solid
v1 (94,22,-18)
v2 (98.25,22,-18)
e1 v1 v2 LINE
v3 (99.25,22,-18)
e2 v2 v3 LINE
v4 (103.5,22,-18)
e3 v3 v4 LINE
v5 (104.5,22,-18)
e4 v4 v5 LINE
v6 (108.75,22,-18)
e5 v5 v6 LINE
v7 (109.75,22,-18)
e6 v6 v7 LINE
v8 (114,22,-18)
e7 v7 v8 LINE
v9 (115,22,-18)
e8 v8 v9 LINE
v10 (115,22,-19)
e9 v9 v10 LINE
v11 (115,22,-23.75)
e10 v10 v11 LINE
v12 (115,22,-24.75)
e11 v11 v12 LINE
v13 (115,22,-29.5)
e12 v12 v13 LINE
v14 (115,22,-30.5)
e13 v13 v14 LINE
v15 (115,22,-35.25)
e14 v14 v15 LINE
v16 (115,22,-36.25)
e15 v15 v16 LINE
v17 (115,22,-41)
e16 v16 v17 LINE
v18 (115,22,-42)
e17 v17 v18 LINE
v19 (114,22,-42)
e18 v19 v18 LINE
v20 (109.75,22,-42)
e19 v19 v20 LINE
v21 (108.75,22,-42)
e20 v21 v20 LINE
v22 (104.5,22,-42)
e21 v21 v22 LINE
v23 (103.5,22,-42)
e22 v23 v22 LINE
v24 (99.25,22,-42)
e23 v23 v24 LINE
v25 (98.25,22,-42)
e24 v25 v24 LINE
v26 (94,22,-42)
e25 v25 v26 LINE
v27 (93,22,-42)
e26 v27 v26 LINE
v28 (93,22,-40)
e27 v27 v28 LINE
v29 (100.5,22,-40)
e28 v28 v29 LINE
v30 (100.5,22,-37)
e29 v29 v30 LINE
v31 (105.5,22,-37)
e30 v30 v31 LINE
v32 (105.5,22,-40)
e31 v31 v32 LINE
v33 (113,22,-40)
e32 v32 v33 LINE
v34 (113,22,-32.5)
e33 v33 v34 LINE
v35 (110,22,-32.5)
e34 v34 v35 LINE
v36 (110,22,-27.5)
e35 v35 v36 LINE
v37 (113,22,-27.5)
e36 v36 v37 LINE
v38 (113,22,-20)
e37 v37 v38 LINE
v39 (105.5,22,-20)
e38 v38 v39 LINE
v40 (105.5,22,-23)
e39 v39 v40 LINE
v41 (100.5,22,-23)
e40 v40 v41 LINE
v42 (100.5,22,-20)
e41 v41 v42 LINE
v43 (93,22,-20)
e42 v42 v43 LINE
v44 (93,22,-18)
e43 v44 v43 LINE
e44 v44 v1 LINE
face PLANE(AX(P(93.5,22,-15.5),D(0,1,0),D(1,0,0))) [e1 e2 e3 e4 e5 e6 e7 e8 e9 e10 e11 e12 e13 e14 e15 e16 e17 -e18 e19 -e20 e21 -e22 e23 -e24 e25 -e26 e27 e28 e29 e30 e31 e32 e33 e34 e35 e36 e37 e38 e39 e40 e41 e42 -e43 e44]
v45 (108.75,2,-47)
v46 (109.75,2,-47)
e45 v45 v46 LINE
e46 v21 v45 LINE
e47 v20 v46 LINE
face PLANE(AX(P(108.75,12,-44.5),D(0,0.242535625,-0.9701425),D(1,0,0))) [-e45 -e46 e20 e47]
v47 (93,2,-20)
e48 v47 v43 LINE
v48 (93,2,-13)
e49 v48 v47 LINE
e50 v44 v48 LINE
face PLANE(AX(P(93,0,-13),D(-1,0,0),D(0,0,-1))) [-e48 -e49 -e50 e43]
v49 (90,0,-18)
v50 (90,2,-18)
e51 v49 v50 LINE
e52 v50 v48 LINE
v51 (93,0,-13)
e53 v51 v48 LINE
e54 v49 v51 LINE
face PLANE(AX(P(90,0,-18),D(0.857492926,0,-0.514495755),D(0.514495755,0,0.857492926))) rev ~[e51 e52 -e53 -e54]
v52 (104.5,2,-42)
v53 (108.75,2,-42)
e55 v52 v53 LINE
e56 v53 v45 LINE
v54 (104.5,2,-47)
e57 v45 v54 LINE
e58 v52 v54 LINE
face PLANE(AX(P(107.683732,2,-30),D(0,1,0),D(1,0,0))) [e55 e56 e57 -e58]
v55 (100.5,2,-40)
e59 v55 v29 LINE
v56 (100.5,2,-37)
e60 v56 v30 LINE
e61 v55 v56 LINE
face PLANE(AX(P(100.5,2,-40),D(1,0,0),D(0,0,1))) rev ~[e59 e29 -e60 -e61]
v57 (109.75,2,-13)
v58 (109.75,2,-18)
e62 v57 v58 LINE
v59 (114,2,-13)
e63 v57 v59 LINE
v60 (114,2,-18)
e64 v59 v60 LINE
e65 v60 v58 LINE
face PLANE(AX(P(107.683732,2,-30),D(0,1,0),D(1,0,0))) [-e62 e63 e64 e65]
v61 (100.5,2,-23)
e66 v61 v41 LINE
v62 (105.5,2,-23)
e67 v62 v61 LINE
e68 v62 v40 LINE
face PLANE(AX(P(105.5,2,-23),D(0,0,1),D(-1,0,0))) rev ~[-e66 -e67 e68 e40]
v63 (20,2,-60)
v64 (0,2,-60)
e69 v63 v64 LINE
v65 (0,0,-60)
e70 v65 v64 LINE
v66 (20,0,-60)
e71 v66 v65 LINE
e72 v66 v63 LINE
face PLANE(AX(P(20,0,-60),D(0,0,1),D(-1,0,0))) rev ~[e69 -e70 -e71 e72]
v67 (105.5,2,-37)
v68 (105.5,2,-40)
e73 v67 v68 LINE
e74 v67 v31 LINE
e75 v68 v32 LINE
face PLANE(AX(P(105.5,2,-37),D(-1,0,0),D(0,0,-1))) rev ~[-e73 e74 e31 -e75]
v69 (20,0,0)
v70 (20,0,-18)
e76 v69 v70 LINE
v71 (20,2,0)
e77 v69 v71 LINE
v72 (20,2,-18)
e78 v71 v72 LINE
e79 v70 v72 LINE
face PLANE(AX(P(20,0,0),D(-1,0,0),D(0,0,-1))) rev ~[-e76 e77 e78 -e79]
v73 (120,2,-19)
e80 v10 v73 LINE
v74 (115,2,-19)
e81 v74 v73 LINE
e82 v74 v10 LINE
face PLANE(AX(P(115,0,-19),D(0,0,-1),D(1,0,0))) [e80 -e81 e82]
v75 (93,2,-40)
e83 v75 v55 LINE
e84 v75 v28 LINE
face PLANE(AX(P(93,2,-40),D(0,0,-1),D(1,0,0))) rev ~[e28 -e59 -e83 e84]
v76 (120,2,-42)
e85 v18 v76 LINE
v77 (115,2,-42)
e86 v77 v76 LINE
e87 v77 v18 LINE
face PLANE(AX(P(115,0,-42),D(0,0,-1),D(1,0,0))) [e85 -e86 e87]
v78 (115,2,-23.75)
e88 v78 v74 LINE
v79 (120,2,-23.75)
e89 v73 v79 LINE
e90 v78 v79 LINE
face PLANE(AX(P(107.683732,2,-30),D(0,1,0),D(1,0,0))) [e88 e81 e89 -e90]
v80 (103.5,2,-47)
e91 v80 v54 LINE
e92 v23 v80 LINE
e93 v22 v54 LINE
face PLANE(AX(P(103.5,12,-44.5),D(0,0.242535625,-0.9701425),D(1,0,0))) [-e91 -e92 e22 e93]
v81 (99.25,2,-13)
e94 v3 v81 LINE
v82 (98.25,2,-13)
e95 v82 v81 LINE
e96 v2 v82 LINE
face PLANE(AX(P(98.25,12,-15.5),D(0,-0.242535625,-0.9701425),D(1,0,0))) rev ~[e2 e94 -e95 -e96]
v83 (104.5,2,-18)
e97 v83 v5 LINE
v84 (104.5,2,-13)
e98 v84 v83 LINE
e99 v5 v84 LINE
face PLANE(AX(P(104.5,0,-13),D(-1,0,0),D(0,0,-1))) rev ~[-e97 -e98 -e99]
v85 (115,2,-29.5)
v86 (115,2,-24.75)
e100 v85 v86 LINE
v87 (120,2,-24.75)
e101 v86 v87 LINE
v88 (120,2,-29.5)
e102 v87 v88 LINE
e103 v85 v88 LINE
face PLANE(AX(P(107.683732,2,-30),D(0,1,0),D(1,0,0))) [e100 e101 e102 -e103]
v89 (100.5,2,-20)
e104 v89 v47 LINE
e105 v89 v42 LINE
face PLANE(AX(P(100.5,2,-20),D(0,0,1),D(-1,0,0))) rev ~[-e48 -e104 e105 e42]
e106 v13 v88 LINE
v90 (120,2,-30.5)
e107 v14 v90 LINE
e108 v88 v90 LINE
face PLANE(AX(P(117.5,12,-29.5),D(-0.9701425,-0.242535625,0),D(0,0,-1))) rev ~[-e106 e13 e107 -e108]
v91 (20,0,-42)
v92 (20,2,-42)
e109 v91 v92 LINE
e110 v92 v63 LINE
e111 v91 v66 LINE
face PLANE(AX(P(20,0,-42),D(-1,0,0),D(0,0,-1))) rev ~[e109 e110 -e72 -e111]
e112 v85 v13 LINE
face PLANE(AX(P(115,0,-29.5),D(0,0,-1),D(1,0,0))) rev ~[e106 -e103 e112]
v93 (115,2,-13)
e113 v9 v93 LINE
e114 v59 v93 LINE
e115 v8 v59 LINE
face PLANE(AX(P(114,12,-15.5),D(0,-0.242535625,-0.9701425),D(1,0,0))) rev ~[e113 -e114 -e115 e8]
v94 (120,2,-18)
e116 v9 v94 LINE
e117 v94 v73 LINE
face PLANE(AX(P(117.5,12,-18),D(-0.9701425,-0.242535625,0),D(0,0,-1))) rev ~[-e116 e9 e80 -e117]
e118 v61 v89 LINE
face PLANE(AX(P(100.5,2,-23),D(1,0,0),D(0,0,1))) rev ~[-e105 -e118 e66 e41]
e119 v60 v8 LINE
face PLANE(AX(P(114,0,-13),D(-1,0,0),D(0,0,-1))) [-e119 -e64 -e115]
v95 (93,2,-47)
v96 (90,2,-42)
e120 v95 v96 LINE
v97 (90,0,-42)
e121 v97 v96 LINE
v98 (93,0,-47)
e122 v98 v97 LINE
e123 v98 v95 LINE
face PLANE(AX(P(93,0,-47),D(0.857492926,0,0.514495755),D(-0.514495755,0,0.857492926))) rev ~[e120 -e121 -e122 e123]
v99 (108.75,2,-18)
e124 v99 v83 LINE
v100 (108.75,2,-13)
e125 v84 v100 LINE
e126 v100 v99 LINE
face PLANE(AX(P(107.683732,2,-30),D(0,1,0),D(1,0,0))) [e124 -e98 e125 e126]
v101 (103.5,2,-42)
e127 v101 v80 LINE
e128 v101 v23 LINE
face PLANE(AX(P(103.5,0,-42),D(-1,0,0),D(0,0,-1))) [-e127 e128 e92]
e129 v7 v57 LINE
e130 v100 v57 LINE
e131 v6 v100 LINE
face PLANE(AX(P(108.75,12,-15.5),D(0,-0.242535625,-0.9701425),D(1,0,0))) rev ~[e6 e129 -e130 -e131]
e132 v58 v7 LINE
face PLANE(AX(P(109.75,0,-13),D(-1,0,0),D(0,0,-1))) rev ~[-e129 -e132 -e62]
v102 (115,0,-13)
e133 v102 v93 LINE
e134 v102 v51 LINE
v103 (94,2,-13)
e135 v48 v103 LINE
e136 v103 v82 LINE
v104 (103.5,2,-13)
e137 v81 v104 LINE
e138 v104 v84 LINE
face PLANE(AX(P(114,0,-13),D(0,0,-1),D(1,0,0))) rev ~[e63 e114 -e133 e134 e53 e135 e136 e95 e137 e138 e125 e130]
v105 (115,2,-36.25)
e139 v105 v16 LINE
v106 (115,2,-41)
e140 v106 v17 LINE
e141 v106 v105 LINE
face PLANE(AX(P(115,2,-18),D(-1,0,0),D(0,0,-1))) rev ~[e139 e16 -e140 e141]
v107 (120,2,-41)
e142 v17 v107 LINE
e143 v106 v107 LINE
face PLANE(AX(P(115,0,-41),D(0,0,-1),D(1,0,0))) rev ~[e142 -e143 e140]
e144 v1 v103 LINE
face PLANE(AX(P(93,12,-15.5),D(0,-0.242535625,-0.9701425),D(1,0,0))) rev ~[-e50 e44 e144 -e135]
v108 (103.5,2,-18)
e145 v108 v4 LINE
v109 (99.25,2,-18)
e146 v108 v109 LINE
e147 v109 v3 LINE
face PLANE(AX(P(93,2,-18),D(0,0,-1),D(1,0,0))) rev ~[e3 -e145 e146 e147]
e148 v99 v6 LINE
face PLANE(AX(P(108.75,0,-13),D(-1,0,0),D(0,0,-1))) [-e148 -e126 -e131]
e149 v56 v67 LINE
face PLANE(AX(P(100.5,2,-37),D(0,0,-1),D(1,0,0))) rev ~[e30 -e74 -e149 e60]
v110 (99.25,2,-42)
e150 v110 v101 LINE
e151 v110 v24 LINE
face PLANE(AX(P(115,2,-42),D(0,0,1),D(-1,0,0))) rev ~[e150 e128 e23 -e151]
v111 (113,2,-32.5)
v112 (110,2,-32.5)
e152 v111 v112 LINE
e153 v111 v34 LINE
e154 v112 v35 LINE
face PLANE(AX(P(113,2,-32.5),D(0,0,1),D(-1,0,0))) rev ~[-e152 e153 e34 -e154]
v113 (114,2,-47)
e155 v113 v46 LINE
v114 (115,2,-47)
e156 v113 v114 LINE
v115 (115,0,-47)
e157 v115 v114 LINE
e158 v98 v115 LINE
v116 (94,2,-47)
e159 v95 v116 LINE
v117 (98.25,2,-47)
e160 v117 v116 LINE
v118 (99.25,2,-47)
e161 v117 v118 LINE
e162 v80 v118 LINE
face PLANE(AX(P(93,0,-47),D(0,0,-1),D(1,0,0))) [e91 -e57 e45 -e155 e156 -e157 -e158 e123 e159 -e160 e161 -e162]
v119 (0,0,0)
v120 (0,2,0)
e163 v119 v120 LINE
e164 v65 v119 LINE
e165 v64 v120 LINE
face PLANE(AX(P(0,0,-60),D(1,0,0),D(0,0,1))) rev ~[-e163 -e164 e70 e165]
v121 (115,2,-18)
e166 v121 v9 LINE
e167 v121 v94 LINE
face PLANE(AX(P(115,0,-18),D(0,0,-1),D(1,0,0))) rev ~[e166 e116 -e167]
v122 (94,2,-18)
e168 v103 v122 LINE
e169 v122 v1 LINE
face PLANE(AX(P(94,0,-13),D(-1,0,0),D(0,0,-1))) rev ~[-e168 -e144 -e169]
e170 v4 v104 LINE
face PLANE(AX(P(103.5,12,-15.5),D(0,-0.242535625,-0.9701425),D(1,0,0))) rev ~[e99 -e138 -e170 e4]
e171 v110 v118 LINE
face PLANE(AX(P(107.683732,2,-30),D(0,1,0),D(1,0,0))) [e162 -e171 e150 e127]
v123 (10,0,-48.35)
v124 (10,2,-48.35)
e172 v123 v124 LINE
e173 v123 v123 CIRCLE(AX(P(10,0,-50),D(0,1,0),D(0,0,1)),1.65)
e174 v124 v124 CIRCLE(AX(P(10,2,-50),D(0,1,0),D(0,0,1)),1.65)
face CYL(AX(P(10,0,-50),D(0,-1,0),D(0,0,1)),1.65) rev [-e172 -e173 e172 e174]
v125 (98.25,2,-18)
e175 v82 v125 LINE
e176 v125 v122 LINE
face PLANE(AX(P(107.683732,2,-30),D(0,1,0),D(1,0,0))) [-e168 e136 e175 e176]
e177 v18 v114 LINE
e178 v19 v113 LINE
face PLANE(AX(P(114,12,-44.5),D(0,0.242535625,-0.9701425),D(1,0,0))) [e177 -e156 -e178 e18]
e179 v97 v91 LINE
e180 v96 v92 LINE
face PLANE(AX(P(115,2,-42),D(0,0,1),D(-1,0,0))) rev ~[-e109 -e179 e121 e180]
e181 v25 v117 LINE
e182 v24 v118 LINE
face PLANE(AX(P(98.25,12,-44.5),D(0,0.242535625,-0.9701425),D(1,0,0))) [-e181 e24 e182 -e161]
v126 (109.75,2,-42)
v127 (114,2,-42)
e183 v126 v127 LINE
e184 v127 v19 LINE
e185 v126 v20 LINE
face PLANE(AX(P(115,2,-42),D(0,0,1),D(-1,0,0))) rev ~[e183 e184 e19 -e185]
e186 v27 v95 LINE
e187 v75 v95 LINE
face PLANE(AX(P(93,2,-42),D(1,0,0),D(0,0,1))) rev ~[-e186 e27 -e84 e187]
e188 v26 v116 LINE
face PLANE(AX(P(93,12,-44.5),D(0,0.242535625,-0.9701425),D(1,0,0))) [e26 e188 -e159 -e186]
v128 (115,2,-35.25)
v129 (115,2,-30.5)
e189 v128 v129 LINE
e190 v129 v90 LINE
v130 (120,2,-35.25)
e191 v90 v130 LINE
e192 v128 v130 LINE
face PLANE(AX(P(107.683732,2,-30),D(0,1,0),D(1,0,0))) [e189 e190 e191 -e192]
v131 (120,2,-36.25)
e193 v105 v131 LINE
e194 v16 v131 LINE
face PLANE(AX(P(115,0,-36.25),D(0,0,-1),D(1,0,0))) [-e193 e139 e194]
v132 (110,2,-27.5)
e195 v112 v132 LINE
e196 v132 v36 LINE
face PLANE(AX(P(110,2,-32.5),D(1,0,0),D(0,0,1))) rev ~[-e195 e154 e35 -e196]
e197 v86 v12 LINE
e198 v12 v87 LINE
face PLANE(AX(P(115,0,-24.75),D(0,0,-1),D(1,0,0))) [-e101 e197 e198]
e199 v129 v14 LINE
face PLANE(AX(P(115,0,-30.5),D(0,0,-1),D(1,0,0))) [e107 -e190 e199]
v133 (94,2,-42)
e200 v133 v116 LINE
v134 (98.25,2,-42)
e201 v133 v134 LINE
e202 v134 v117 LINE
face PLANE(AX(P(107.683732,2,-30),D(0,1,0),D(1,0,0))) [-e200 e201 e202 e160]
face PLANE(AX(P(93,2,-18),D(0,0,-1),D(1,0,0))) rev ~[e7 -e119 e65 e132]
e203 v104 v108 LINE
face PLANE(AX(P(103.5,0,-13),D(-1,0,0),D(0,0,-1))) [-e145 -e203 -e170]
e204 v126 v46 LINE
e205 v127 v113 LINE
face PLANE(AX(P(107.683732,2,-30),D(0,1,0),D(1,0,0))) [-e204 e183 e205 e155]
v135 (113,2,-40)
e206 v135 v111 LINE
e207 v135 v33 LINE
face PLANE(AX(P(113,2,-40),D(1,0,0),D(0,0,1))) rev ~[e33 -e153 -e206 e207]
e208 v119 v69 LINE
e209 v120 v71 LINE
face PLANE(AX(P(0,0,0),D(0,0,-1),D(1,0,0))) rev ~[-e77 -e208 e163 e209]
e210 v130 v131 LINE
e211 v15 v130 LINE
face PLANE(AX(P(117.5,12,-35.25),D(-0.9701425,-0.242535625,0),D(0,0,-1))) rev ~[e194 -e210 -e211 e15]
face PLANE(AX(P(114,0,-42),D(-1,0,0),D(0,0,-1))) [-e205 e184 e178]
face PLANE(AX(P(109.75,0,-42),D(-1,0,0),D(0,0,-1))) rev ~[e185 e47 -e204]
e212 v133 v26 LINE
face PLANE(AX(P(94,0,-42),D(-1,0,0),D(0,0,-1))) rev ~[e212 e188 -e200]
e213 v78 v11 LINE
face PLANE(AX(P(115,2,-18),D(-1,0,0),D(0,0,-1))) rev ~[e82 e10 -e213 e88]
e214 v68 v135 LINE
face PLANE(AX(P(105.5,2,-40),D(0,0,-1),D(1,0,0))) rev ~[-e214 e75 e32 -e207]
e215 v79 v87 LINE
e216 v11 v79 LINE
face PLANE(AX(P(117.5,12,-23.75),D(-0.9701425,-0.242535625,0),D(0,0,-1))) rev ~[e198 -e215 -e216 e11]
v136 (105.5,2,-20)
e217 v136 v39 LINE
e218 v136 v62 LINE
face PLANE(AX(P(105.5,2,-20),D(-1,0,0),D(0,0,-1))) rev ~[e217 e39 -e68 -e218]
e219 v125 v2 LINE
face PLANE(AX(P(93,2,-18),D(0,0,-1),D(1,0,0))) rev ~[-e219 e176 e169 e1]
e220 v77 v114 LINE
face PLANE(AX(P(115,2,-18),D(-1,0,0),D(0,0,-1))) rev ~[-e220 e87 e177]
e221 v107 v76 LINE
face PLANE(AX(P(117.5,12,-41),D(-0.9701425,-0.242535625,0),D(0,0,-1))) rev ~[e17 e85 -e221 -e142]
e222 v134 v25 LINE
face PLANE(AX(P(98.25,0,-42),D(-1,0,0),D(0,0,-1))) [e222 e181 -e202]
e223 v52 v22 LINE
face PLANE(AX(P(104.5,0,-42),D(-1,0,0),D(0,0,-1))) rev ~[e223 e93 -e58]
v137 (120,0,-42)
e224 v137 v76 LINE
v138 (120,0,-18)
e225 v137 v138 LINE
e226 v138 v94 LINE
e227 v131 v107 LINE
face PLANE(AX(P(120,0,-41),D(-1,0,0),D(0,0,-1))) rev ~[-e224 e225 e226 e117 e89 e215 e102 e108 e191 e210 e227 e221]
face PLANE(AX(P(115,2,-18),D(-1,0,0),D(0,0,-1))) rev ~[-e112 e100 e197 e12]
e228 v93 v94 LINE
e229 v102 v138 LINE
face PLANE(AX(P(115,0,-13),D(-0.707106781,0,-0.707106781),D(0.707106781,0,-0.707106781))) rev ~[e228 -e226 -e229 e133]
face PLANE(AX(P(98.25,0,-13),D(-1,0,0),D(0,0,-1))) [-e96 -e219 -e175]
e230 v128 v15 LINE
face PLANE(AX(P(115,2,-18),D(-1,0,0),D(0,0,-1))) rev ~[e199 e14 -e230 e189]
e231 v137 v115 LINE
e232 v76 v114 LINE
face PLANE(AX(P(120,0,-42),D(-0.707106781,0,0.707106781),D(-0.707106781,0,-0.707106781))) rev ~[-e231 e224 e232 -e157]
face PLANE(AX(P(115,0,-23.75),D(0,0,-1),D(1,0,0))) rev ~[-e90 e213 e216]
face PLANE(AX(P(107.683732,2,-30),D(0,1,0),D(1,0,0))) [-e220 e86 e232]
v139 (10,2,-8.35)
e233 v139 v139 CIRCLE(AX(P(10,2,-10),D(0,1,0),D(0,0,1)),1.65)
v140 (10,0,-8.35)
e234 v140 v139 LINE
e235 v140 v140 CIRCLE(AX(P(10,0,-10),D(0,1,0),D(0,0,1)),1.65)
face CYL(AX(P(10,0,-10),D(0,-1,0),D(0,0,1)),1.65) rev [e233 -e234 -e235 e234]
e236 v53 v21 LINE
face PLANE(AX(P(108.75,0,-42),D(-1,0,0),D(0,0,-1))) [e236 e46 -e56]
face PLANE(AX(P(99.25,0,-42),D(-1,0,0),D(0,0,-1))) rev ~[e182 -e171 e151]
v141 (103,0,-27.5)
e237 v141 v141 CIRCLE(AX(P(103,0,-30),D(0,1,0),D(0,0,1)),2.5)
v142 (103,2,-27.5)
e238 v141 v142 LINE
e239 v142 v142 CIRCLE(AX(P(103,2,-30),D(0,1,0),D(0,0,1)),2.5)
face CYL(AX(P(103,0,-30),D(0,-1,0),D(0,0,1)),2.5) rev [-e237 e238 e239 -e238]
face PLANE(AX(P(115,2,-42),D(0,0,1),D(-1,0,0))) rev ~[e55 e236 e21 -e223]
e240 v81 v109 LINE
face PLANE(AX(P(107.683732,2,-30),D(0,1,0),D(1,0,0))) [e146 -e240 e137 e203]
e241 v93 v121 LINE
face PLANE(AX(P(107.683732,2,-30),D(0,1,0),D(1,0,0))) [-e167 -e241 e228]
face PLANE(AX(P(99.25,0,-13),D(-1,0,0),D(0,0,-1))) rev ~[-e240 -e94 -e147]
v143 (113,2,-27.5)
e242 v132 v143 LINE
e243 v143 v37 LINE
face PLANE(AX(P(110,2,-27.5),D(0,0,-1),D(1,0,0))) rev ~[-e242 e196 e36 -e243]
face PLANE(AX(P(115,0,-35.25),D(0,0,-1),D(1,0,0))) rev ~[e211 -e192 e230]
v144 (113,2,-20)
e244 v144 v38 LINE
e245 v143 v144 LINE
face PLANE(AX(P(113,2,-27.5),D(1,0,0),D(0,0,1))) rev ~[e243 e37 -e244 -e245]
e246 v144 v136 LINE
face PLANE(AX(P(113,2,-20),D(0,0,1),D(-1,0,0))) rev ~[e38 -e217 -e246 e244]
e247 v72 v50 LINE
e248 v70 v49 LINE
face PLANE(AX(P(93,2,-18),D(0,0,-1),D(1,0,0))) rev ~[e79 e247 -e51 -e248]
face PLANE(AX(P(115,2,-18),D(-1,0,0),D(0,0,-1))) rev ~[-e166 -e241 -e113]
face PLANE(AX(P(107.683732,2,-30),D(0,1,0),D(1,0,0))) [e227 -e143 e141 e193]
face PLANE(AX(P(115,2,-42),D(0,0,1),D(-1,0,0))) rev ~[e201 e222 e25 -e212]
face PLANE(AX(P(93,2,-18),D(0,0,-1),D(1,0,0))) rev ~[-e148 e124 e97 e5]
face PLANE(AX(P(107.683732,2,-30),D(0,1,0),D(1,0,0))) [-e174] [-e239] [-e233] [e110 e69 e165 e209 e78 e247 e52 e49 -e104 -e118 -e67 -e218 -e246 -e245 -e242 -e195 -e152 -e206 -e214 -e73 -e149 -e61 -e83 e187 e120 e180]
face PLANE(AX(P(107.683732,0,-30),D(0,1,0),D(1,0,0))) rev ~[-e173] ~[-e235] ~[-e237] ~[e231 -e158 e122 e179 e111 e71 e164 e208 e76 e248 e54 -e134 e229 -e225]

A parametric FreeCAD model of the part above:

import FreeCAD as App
import Part
import Sketcher

V = App.Vector


def edges_at(feature, points):
    """Names of the edges that pass closest to the given points."""
    edges = feature.Shape.Edges
    near = lambda p: min(range(len(edges)), key=lambda i: edges[i].distToShape(Part.Vertex(*p))[0])
    return sorted({f"Edge{near(p) + 1}" for p in points})

doc = App.newDocument("Part")
body = doc.addObject("PartDesign::Body", "Body")

# Sketch on XZ plane
sketch1 = body.newObject("Sketcher::SketchObject", "Sketch")
sketch1.AttachmentSupport = (doc.getObject("XZ_Plane"), [""])
sketch1.MapMode = "FlatFace"
sketch1.addGeometry([
    Part.LineSegment(V(20, -18, 0), V(115, -18, 0)),  # 0
    Part.LineSegment(V(115, -18, 0), V(115, -42, 0)),  # 1
    Part.LineSegment(V(115, -42, 0), V(20, -42, 0)),  # 2
    Part.LineSegment(V(20, -42, 0), V(20, -60, 0)),  # 3
    Part.LineSegment(V(20, -60, 0), V(0, -60, 0)),  # 4
    Part.LineSegment(V(0, -60, 0), V(0, 0, 0)),  # 5
    Part.LineSegment(V(0, 0, 0), V(20, 0, 0)),  # 6
    Part.LineSegment(V(20, 0, 0), V(20, -18, 0)),  # 7
    Part.Circle(V(10, -10, 0), V(0, 0, 1), 1.6),  # 8
    Part.Circle(V(10, -50, 0), V(0, 0, 1), 1.6),  # 9
    Part.Circle(V(103, -30, 0), V(0, 0, 1), 2.5),  # 10
], False)
sketch1.addConstraint([
    Sketcher.Constraint("Coincident", 0, 2, 1, 1),
    Sketcher.Constraint("Coincident", 1, 2, 2, 1),
    Sketcher.Constraint("Coincident", 2, 2, 3, 1),
    Sketcher.Constraint("Coincident", 3, 2, 4, 1),
    Sketcher.Constraint("Coincident", 4, 2, 5, 1),
    Sketcher.Constraint("Coincident", 5, 2, 6, 1),
    Sketcher.Constraint("Coincident", 6, 2, 7, 1),
    Sketcher.Constraint("Coincident", 7, 2, 0, 1),
    Sketcher.Constraint("Horizontal", 0),
    Sketcher.Constraint("Vertical", 1),
    Sketcher.Constraint("Horizontal", 2),
    Sketcher.Constraint("Vertical", 3),
    Sketcher.Constraint("Horizontal", 4),
    Sketcher.Constraint("Vertical", 5),
    Sketcher.Constraint("Horizontal", 6),
    Sketcher.Constraint("Vertical", 7),
    Sketcher.Constraint("Coincident", 5, 2, -1, 1),
    Sketcher.Constraint("Equal", 8, 9),
    Sketcher.Constraint("Vertical", 8, 3, 9, 3),
    Sketcher.Constraint("Vertical", 3, 2, 6, 2),
    Sketcher.Constraint("Equal", 3, 7),
    Sketcher.Constraint("Diameter", 10, 5.0),
    Sketcher.Constraint("Diameter", 8, 3.3),
    Sketcher.Constraint("DistanceX", 0, 1, 0, 2, 95.0),
    Sketcher.Constraint("DistanceX", 4, 2, 4, 1, 20.0),
    Sketcher.Constraint("DistanceY", 1, 2, 1, 1, 24.0),
    Sketcher.Constraint("DistanceY", 3, 2, 3, 1, 18.0),
    Sketcher.Constraint("DistanceX", -1, 1, 8, 3, 10.0),
    Sketcher.Constraint("DistanceY", 8, 3, -1, 1, 10.0),
    Sketcher.Constraint("DistanceY", 9, 3, -1, 1, 50.0),
    Sketcher.Constraint("DistanceX", -1, 1, 10, 3, 103.0),
    Sketcher.Constraint("DistanceY", 10, 3, -1, 1, 30.0),
])
pad1 = body.newObject("PartDesign::Pad", "Pad")
pad1.Profile = sketch1
pad1.Length = 2
pad1.Reversed = True

# Sketch on XZ plane
sketch2 = body.newObject("Sketcher::SketchObject", "Sketch001")
sketch2.AttachmentSupport = (doc.getObject("XZ_Plane"), [""])
sketch2.MapMode = "FlatFace"
sketch2.AttachmentOffset = App.Placement(V(0, 0, -2), App.Rotation())
sketch2.addGeometry([
    Part.LineSegment(V(115, -42, 0), V(93, -42, 0)),  # 0
    Part.LineSegment(V(93, -42, 0), V(93, -40, 0)),  # 1
    Part.LineSegment(V(93, -40, 0), V(100.5, -40, 0)),  # 2
    Part.LineSegment(V(100.5, -40, 0), V(100.5, -37, 0)),  # 3
    Part.LineSegment(V(100.5, -37, 0), V(105.5, -37, 0)),  # 4
    Part.LineSegment(V(105.5, -37, 0), V(105.5, -40, 0)),  # 5
    Part.LineSegment(V(105.5, -40, 0), V(113, -40, 0)),  # 6
    Part.LineSegment(V(113, -40, 0), V(113, -32.5, 0)),  # 7
    Part.LineSegment(V(113, -32.5, 0), V(110, -32.5, 0)),  # 8
    Part.LineSegment(V(110, -32.5, 0), V(110, -27.5, 0)),  # 9
    Part.LineSegment(V(110, -27.5, 0), V(113, -27.5, 0)),  # 10
    Part.LineSegment(V(113, -27.5, 0), V(113, -20, 0)),  # 11
    Part.LineSegment(V(113, -20, 0), V(105.5, -20, 0)),  # 12
    Part.LineSegment(V(105.5, -20, 0), V(105.5, -23, 0)),  # 13
    Part.LineSegment(V(105.5, -23, 0), V(100.5, -23, 0)),  # 14
    Part.LineSegment(V(100.5, -23, 0), V(100.5, -20, 0)),  # 15
    Part.LineSegment(V(100.5, -20, 0), V(93, -20, 0)),  # 16
    Part.LineSegment(V(93, -20, 0), V(93, -18, 0)),  # 17
    Part.LineSegment(V(93, -18, 0), V(115, -18, 0)),  # 18
    Part.LineSegment(V(115, -18, 0), V(115, -42, 0)),  # 19
], False)
sketch2.addConstraint([
    Sketcher.Constraint("Coincident", 0, 2, 1, 1),
    Sketcher.Constraint("Coincident", 1, 2, 2, 1),
    Sketcher.Constraint("Coincident", 2, 2, 3, 1),
    Sketcher.Constraint("Coincident", 3, 2, 4, 1),
    Sketcher.Constraint("Coincident", 4, 2, 5, 1),
    Sketcher.Constraint("Coincident", 5, 2, 6, 1),
    Sketcher.Constraint("Coincident", 6, 2, 7, 1),
    Sketcher.Constraint("Coincident", 7, 2, 8, 1),
    Sketcher.Constraint("Coincident", 8, 2, 9, 1),
    Sketcher.Constraint("Coincident", 9, 2, 10, 1),
    Sketcher.Constraint("Coincident", 10, 2, 11, 1),
    Sketcher.Constraint("Coincident", 11, 2, 12, 1),
    Sketcher.Constraint("Coincident", 12, 2, 13, 1),
    Sketcher.Constraint("Coincident", 13, 2, 14, 1),
    Sketcher.Constraint("Coincident", 14, 2, 15, 1),
    Sketcher.Constraint("Coincident", 15, 2, 16, 1),
    Sketcher.Constraint("Coincident", 16, 2, 17, 1),
    Sketcher.Constraint("Coincident", 17, 2, 18, 1),
    Sketcher.Constraint("Coincident", 18, 2, 19, 1),
    Sketcher.Constraint("Coincident", 19, 2, 0, 1),
    Sketcher.Constraint("Horizontal", 0),
    Sketcher.Constraint("Vertical", 1),
    Sketcher.Constraint("Horizontal", 2),
    Sketcher.Constraint("Vertical", 3),
    Sketcher.Constraint("Horizontal", 4),
    Sketcher.Constraint("Vertical", 5),
    Sketcher.Constraint("Horizontal", 6),
    Sketcher.Constraint("Vertical", 7),
    Sketcher.Constraint("Horizontal", 8),
    Sketcher.Constraint("Vertical", 9),
    Sketcher.Constraint("Horizontal", 10),
    Sketcher.Constraint("Vertical", 11),
    Sketcher.Constraint("Horizontal", 12),
    Sketcher.Constraint("Vertical", 13),
    Sketcher.Constraint("Horizontal", 14),
    Sketcher.Constraint("Vertical", 15),
    Sketcher.Constraint("Horizontal", 16),
    Sketcher.Constraint("Vertical", 17),
    Sketcher.Constraint("Horizontal", 18),
    Sketcher.Constraint("Vertical", 19),
    Sketcher.Constraint("Horizontal", 2, 2, 5, 2),
    Sketcher.Constraint("Horizontal", 12, 2, 15, 2),
    Sketcher.Constraint("Vertical", 7, 2, 10, 2),
    Sketcher.Constraint("Vertical", 5, 2, 12, 2),
    Sketcher.Constraint("Vertical", 3, 2, 14, 2),
    Sketcher.Constraint("Vertical", 1, 2, 16, 2),
    Sketcher.Constraint("Equal", 2, 6),
    Sketcher.Constraint("Equal", 10, 3),
    Sketcher.Constraint("Equal", 16, 7),
    Sketcher.Constraint("Equal", 14, 9),
    Sketcher.Constraint("Equal", 7, 11),
    Sketcher.Constraint("Equal", 5, 13),
    Sketcher.Constraint("Equal", 1, 17),
    Sketcher.Constraint("DistanceX", 0, 2, 0, 1, 22.0),
    Sketcher.Constraint("DistanceX", 4, 1, 4, 2, 5.0),
    Sketcher.Constraint("DistanceX", 8, 2, 8, 1, 3.0),
    Sketcher.Constraint("DistanceY", 1, 1, 1, 2, 2.0),
    Sketcher.Constraint("DistanceY", 19, 2, 19, 1, 24.0),
    Sketcher.Constraint("DistanceX", -1, 1, 0, 2, 93.0),
    Sketcher.Constraint("DistanceY", 0, 2, -1, 1, 42.0),
])
pad2 = body.newObject("PartDesign::Pad", "Pad001")
pad2.Profile = sketch2
pad2.Length = 20
pad2.Reversed = True

# Sketch on XZ plane
sketch3 = body.newObject("Sketcher::SketchObject", "Sketch002")
sketch3.AttachmentSupport = (doc.getObject("XZ_Plane"), [""])
sketch3.MapMode = "FlatFace"
sketch3.addGeometry([
    Part.LineSegment(V(98.2, -18, 0), V(98.2, -13, 0)),  # 0
    Part.LineSegment(V(98.2, -13, 0), V(99.2, -13, 0)),  # 1
    Part.LineSegment(V(99.2, -13, 0), V(99.2, -18, 0)),  # 2
    Part.LineSegment(V(99.2, -18, 0), V(98.2, -18, 0)),  # 3
    Part.LineSegment(V(93, -18, 0), V(93, -13, 0)),  # 4
    Part.LineSegment(V(93, -13, 0), V(94, -13, 0)),  # 5
    Part.LineSegment(V(94, -13, 0), V(94, -18, 0)),  # 6
    Part.LineSegment(V(94, -18, 0), V(93, -18, 0)),  # 7
    Part.LineSegment(V(103.5, -18, 0), V(103.5, -13, 0)),  # 8
    Part.LineSegment(V(103.5, -13, 0), V(104.5, -13, 0)),  # 9
    Part.LineSegment(V(104.5, -13, 0), V(104.5, -18, 0)),  # 10
    Part.LineSegment(V(104.5, -18, 0), V(103.5, -18, 0)),  # 11
    Part.LineSegment(V(108.8, -18, 0), V(108.8, -13, 0)),  # 12
    Part.LineSegment(V(108.8, -13, 0), V(109.8, -13, 0)),  # 13
    Part.LineSegment(V(109.8, -13, 0), V(109.8, -18, 0)),  # 14
    Part.LineSegment(V(109.8, -18, 0), V(108.8, -18, 0)),  # 15
    Part.LineSegment(V(114, -18, 0), V(114, -13, 0)),  # 16
    Part.LineSegment(V(114, -13, 0), V(115, -13, 0)),  # 17
    Part.LineSegment(V(115, -13, 0), V(115, -18, 0)),  # 18
    Part.LineSegment(V(115, -18, 0), V(114, -18, 0)),  # 19
    Part.LineSegment(V(114, -47, 0), V(114, -42, 0)),  # 20
    Part.LineSegment(V(114, -42, 0), V(115, -42, 0)),  # 21
    Part.LineSegment(V(115, -42, 0), V(115, -47, 0)),  # 22
    Part.LineSegment(V(115, -47, 0), V(114, -47, 0)),  # 23
    Part.LineSegment(V(108.8, -47, 0), V(108.8, -42, 0)),  # 24
    Part.LineSegment(V(108.8, -42, 0), V(109.8, -42, 0)),  # 25
    Part.LineSegment(V(109.8, -42, 0), V(109.8, -47, 0)),  # 26
    Part.LineSegment(V(109.8, -47, 0), V(108.8, -47, 0)),  # 27
    Part.LineSegment(V(103.5, -47, 0), V(103.5, -42, 0)),  # 28
    Part.LineSegment(V(103.5, -42, 0), V(104.5, -42, 0)),  # 29
    Part.LineSegment(V(104.5, -42, 0), V(104.5, -47, 0)),  # 30
    Part.LineSegment(V(104.5, -47, 0), V(103.5, -47, 0)),  # 31
    Part.LineSegment(V(98.2, -47, 0), V(98.2, -42, 0)),  # 32
    Part.LineSegment(V(98.2, -42, 0), V(99.2, -42, 0)),  # 33
    Part.LineSegment(V(99.2, -42, 0), V(99.2, -47, 0)),  # 34
    Part.LineSegment(V(99.2, -47, 0), V(98.2, -47, 0)),  # 35
    Part.LineSegment(V(93, -47, 0), V(93, -42, 0)),  # 36
    Part.LineSegment(V(93, -42, 0), V(94, -42, 0)),  # 37
    Part.LineSegment(V(94, -42, 0), V(94, -47, 0)),  # 38
    Part.LineSegment(V(94, -47, 0), V(93, -47, 0)),  # 39
], False)
sketch3.addConstraint([
    Sketcher.Constraint("Coincident", 0, 2, 1, 1),
    Sketcher.Constraint("Coincident", 1, 2, 2, 1),
    Sketcher.Constraint("Coincident", 2, 2, 3, 1),
    Sketcher.Constraint("Coincident", 3, 2, 0, 1),
    Sketcher.Constraint("Coincident", 4, 2, 5, 1),
    Sketcher.Constraint("Coincident", 5, 2, 6, 1),
    Sketcher.Constraint("Coincident", 6, 2, 7, 1),
    Sketcher.Constraint("Coincident", 7, 2, 4, 1),
    Sketcher.Constraint("Coincident", 8, 2, 9, 1),
    Sketcher.Constraint("Coincident", 9, 2, 10, 1),
    Sketcher.Constraint("Coincident", 10, 2, 11, 1),
    Sketcher.Constraint("Coincident", 11, 2, 8, 1),
    Sketcher.Constraint("Coincident", 12, 2, 13, 1),
    Sketcher.Constraint("Coincident", 13, 2, 14, 1),
    Sketcher.Constraint("Coincident", 14, 2, 15, 1),
    Sketcher.Constraint("Coincident", 15, 2, 12, 1),
    Sketcher.Constraint("Coincident", 16, 2, 17, 1),
    Sketcher.Constraint("Coincident", 17, 2, 18, 1),
    Sketcher.Constraint("Coincident", 18, 2, 19, 1),
    Sketcher.Constraint("Coincident", 19, 2, 16, 1),
    Sketcher.Constraint("Coincident", 20, 2, 21, 1),
    Sketcher.Constraint("Coincident", 21, 2, 22, 1),
    Sketcher.Constraint("Coincident", 22, 2, 23, 1),
    Sketcher.Constraint("Coincident", 23, 2, 20, 1),
    Sketcher.Constraint("Coincident", 24, 2, 25, 1),
    Sketcher.Constraint("Coincident", 25, 2, 26, 1),
    Sketcher.Constraint("Coincident", 26, 2, 27, 1),
    Sketcher.Constraint("Coincident", 27, 2, 24, 1),
    Sketcher.Constraint("Coincident", 28, 2, 29, 1),
    Sketcher.Constraint("Coincident", 29, 2, 30, 1),
    Sketcher.Constraint("Coincident", 30, 2, 31, 1),
    Sketcher.Constraint("Coincident", 31, 2, 28, 1),
    Sketcher.Constraint("Coincident", 32, 2, 33, 1),
    Sketcher.Constraint("Coincident", 33, 2, 34, 1),
    Sketcher.Constraint("Coincident", 34, 2, 35, 1),
    Sketcher.Constraint("Coincident", 35, 2, 32, 1),
    Sketcher.Constraint("Coincident", 36, 2, 37, 1),
    Sketcher.Constraint("Coincident", 37, 2, 38, 1),
    Sketcher.Constraint("Coincident", 38, 2, 39, 1),
    Sketcher.Constraint("Coincident", 39, 2, 36, 1),
    Sketcher.Constraint("Vertical", 0),
    Sketcher.Constraint("Horizontal", 1),
    Sketcher.Constraint("Vertical", 2),
    Sketcher.Constraint("Horizontal", 3),
    Sketcher.Constraint("Vertical", 4),
    Sketcher.Constraint("Horizontal", 5),
    Sketcher.Constraint("Vertical", 6),
    Sketcher.Constraint("Horizontal", 7),
    Sketcher.Constraint("Vertical", 8),
    Sketcher.Constraint("Horizontal", 9),
    Sketcher.Constraint("Vertical", 10),
    Sketcher.Constraint("Horizontal", 11),
    Sketcher.Constraint("Vertical", 12),
    Sketcher.Constraint("Horizontal", 13),
    Sketcher.Constraint("Vertical", 14),
    Sketcher.Constraint("Horizontal", 15),
    Sketcher.Constraint("Vertical", 16),
    Sketcher.Constraint("Horizontal", 17),
    Sketcher.Constraint("Vertical", 18),
    Sketcher.Constraint("Horizontal", 19),
    Sketcher.Constraint("Vertical", 20),
    Sketcher.Constraint("Horizontal", 21),
    Sketcher.Constraint("Vertical", 22),
    Sketcher.Constraint("Horizontal", 23),
    Sketcher.Constraint("Vertical", 24),
    Sketcher.Constraint("Horizontal", 25),
    Sketcher.Constraint("Vertical", 26),
    Sketcher.Constraint("Horizontal", 27),
    Sketcher.Constraint("Vertical", 28),
    Sketcher.Constraint("Horizontal", 29),
    Sketcher.Constraint("Vertical", 30),
    Sketcher.Constraint("Horizontal", 31),
    Sketcher.Constraint("Vertical", 32),
    Sketcher.Constraint("Horizontal", 33),
    Sketcher.Constraint("Vertical", 34),
    Sketcher.Constraint("Horizontal", 35),
    Sketcher.Constraint("Vertical", 36),
    Sketcher.Constraint("Horizontal", 37),
    Sketcher.Constraint("Vertical", 38),
    Sketcher.Constraint("Horizontal", 39),
    Sketcher.Constraint("Horizontal", 1, 2, 4, 2),
    Sketcher.Constraint("Horizontal", 3, 2, 6, 2),
    Sketcher.Constraint("Horizontal", 5, 2, 8, 2),
    Sketcher.Constraint("Horizontal", 7, 2, 10, 2),
    Sketcher.Constraint("Horizontal", 9, 2, 12, 2),
    Sketcher.Constraint("Horizontal", 11, 2, 14, 2),
    Sketcher.Constraint("Horizontal", 13, 2, 16, 2),
    Sketcher.Constraint("Horizontal", 15, 2, 18, 2),
    Sketcher.Constraint("Horizontal", 21, 2, 24, 2),
    Sketcher.Constraint("Horizontal", 23, 2, 26, 2),
    Sketcher.Constraint("Horizontal", 25, 2, 28, 2),
    Sketcher.Constraint("Horizontal", 27, 2, 30, 2),
    Sketcher.Constraint("Horizontal", 29, 2, 32, 2),
    Sketcher.Constraint("Horizontal", 31, 2, 34, 2),
    Sketcher.Constraint("Horizontal", 33, 2, 36, 2),
    Sketcher.Constraint("Horizontal", 35, 2, 38, 2),
    Sketcher.Constraint("Vertical", 19, 2, 20, 2),
    Sketcher.Constraint("Vertical", 18, 2, 21, 2),
    Sketcher.Constraint("Vertical", 15, 2, 24, 2),
    Sketcher.Constraint("Vertical", 14, 2, 25, 2),
    Sketcher.Constraint("Vertical", 11, 2, 28, 2),
    Sketcher.Constraint("Vertical", 10, 2, 29, 2),
    Sketcher.Constraint("Vertical", 3, 2, 32, 2),
    Sketcher.Constraint("Vertical", 2, 2, 33, 2),
    Sketcher.Constraint("Vertical", 7, 2, 36, 2),
    Sketcher.Constraint("Vertical", 6, 2, 37, 2),
    Sketcher.Constraint("Equal", 3, 5),
    Sketcher.Constraint("Equal", 7, 9),
    Sketcher.Constraint("Equal", 11, 13),
    Sketcher.Constraint("Equal", 15, 17),
    Sketcher.Constraint("Equal", 18, 20),
    Sketcher.Constraint("DistanceX", 1, 1, 1, 2, 1.0),
    Sketcher.Constraint("DistanceY", 0, 1, 0, 2, 5.0),
    Sketcher.Constraint("DistanceY", 0, 2, -1, 1, 13.0),
    Sketcher.Constraint("DistanceX", -1, 1, 4, 2, 93.0),
    Sketcher.Constraint("DistanceX", -1, 1, 16, 2, 114.0),
    Sketcher.Constraint("DistanceY", 20, 2, -1, 1, 42.0),
    Sketcher.Constraint("DistanceX", -1, 1, 8, 2, 103.5),
    Sketcher.Constraint("DistanceX", 1, 2, 12, 2, 9.5),
    Sketcher.Constraint("DistanceX", -1, 1, 0, 2, 98.25),
])
pad3 = body.newObject("PartDesign::Pad", "Pad002")
pad3.Profile = sketch3
pad3.Length = 22
pad3.Reversed = True

# Sketch on XZ plane
sketch4 = body.newObject("Sketcher::SketchObject", "Sketch003")
sketch4.AttachmentSupport = (doc.getObject("XZ_Plane"), [""])
sketch4.MapMode = "FlatFace"
sketch4.addGeometry([
    Part.LineSegment(V(115, -19, 0), V(115, -18, 0)),  # 0
    Part.LineSegment(V(115, -18, 0), V(120, -18, 0)),  # 1
    Part.LineSegment(V(120, -18, 0), V(120, -19, 0)),  # 2
    Part.LineSegment(V(120, -19, 0), V(115, -19, 0)),  # 3
    Part.LineSegment(V(115, -24.8, 0), V(115, -23.8, 0)),  # 4
    Part.LineSegment(V(115, -23.8, 0), V(120, -23.8, 0)),  # 5
    Part.LineSegment(V(120, -23.8, 0), V(120, -24.8, 0)),  # 6
    Part.LineSegment(V(120, -24.8, 0), V(115, -24.8, 0)),  # 7
    Part.LineSegment(V(115, -30.5, 0), V(115, -29.5, 0)),  # 8
    Part.LineSegment(V(115, -29.5, 0), V(120, -29.5, 0)),  # 9
    Part.LineSegment(V(120, -29.5, 0), V(120, -30.5, 0)),  # 10
    Part.LineSegment(V(120, -30.5, 0), V(115, -30.5, 0)),  # 11
    Part.LineSegment(V(115, -36.2, 0), V(115, -35.2, 0)),  # 12
    Part.LineSegment(V(115, -35.2, 0), V(120, -35.2, 0)),  # 13
    Part.LineSegment(V(120, -35.2, 0), V(120, -36.2, 0)),  # 14
    Part.LineSegment(V(120, -36.2, 0), V(115, -36.2, 0)),  # 15
    Part.LineSegment(V(115, -42, 0), V(115, -41, 0)),  # 16
    Part.LineSegment(V(115, -41, 0), V(120, -41, 0)),  # 17
    Part.LineSegment(V(120, -41, 0), V(120, -42, 0)),  # 18
    Part.LineSegment(V(120, -42, 0), V(115, -42, 0)),  # 19
], False)
sketch4.addConstraint([
    Sketcher.Constraint("Coincident", 0, 2, 1, 1),
    Sketcher.Constraint("Coincident", 1, 2, 2, 1),
    Sketcher.Constraint("Coincident", 2, 2, 3, 1),
    Sketcher.Constraint("Coincident", 3, 2, 0, 1),
    Sketcher.Constraint("Coincident", 4, 2, 5, 1),
    Sketcher.Constraint("Coincident", 5, 2, 6, 1),
    Sketcher.Constraint("Coincident", 6, 2, 7, 1),
    Sketcher.Constraint("Coincident", 7, 2, 4, 1),
    Sketcher.Constraint("Coincident", 8, 2, 9, 1),
    Sketcher.Constraint("Coincident", 9, 2, 10, 1),
    Sketcher.Constraint("Coincident", 10, 2, 11, 1),
    Sketcher.Constraint("Coincident", 11, 2, 8, 1),
    Sketcher.Constraint("Coincident", 12, 2, 13, 1),
    Sketcher.Constraint("Coincident", 13, 2, 14, 1),
    Sketcher.Constraint("Coincident", 14, 2, 15, 1),
    Sketcher.Constraint("Coincident", 15, 2, 12, 1),
    Sketcher.Constraint("Coincident", 16, 2, 17, 1),
    Sketcher.Constraint("Coincident", 17, 2, 18, 1),
    Sketcher.Constraint("Coincident", 18, 2, 19, 1),
    Sketcher.Constraint("Coincident", 19, 2, 16, 1),
    Sketcher.Constraint("Vertical", 0),
    Sketcher.Constraint("Horizontal", 1),
    Sketcher.Constraint("Vertical", 2),
    Sketcher.Constraint("Horizontal", 3),
    Sketcher.Constraint("Vertical", 4),
    Sketcher.Constraint("Horizontal", 5),
    Sketcher.Constraint("Vertical", 6),
    Sketcher.Constraint("Horizontal", 7),
    Sketcher.Constraint("Vertical", 8),
    Sketcher.Constraint("Horizontal", 9),
    Sketcher.Constraint("Vertical", 10),
    Sketcher.Constraint("Horizontal", 11),
    Sketcher.Constraint("Vertical", 12),
    Sketcher.Constraint("Horizontal", 13),
    Sketcher.Constraint("Vertical", 14),
    Sketcher.Constraint("Horizontal", 15),
    Sketcher.Constraint("Vertical", 16),
    Sketcher.Constraint("Horizontal", 17),
    Sketcher.Constraint("Vertical", 18),
    Sketcher.Constraint("Horizontal", 19),
    Sketcher.Constraint("Vertical", 3, 2, 4, 2),
    Sketcher.Constraint("Vertical", 2, 2, 5, 2),
    Sketcher.Constraint("Vertical", 7, 2, 8, 2),
    Sketcher.Constraint("Vertical", 6, 2, 9, 2),
    Sketcher.Constraint("Vertical", 11, 2, 12, 2),
    Sketcher.Constraint("Vertical", 10, 2, 13, 2),
    Sketcher.Constraint("Vertical", 15, 2, 16, 2),
    Sketcher.Constraint("Vertical", 14, 2, 17, 2),
    Sketcher.Constraint("Equal", 2, 4),
    Sketcher.Constraint("Equal", 6, 8),
    Sketcher.Constraint("Equal", 10, 12),
    Sketcher.Constraint("Equal", 14, 16),
    Sketcher.Constraint("DistanceX", 1, 1, 1, 2, 5.0),
    Sketcher.Constraint("DistanceY", 0, 1, 0, 2, 1.0),
    Sketcher.Constraint("DistanceX", -1, 1, 0, 2, 115.0),
    Sketcher.Constraint("DistanceY", 0, 2, -1, 1, 18.0),
    Sketcher.Constraint("DistanceY", 16, 2, -1, 1, 41.0),
    Sketcher.Constraint("DistanceY", 8, 2, -1, 1, 29.5),
    Sketcher.Constraint("DistanceY", 12, 2, 7, 2, 10.5),
    Sketcher.Constraint("DistanceY", 4, 2, -1, 1, 23.75),
])
pad4 = body.newObject("PartDesign::Pad", "Pad003")
pad4.Profile = sketch4
pad4.Length = 22
pad4.Reversed = True

# Sketch on XZ plane
sketch5 = body.newObject("Sketcher::SketchObject", "Sketch004")
sketch5.AttachmentSupport = (doc.getObject("XZ_Plane"), [""])
sketch5.MapMode = "FlatFace"
sketch5.addGeometry([
    Part.LineSegment(V(90, -42, 0), V(115, -42, 0)),  # 0
    Part.LineSegment(V(115, -42, 0), V(115, -18, 0)),  # 1
    Part.LineSegment(V(115, -18, 0), V(90, -18, 0)),  # 2
    Part.LineSegment(V(90, -18, 0), V(93, -13, 0)),  # 3
    Part.LineSegment(V(93, -13, 0), V(115, -13, 0)),  # 4
    Part.LineSegment(V(115, -13, 0), V(120, -18, 0)),  # 5
    Part.LineSegment(V(120, -18, 0), V(120, -42, 0)),  # 6
    Part.LineSegment(V(120, -42, 0), V(115, -47, 0)),  # 7
    Part.LineSegment(V(115, -47, 0), V(93, -47, 0)),  # 8
    Part.LineSegment(V(93, -47, 0), V(90, -42, 0)),  # 9
], False)
sketch5.addConstraint([
    Sketcher.Constraint("Coincident", 0, 2, 1, 1),
    Sketcher.Constraint("Coincident", 1, 2, 2, 1),
    Sketcher.Constraint("Coincident", 2, 2, 3, 1),
    Sketcher.Constraint("Coincident", 3, 2, 4, 1),
    Sketcher.Constraint("Coincident", 4, 2, 5, 1),
    Sketcher.Constraint("Coincident", 5, 2, 6, 1),
    Sketcher.Constraint("Coincident", 6, 2, 7, 1),
    Sketcher.Constraint("Coincident", 7, 2, 8, 1),
    Sketcher.Constraint("Coincident", 8, 2, 9, 1),
    Sketcher.Constraint("Coincident", 9, 2, 0, 1),
    Sketcher.Constraint("Horizontal", 0),
    Sketcher.Constraint("Vertical", 1),
    Sketcher.Constraint("Horizontal", 2),
    Sketcher.Constraint("Horizontal", 4),
    Sketcher.Constraint("Vertical", 6),
    Sketcher.Constraint("Horizontal", 8),
    Sketcher.Constraint("Perpendicular", 5, 7),
    Sketcher.Constraint("Horizontal", 2, 2, 5, 2),
    Sketcher.Constraint("Horizontal", 0, 2, 6, 2),
    Sketcher.Constraint("Vertical", 1, 2, 4, 2),
    Sketcher.Constraint("Vertical", 4, 2, 7, 2),
    Sketcher.Constraint("Vertical", 3, 2, 8, 2),
    Sketcher.Constraint("Vertical", 2, 2, 9, 2),
    Sketcher.Constraint("Equal", 5, 7),
    Sketcher.Constraint("DistanceX", 0, 1, 0, 2, 25.0),
    Sketcher.Constraint("DistanceX", 4, 1, 4, 2, 22.0),
    Sketcher.Constraint("DistanceY", 1, 1, 1, 2, 24.0),
    Sketcher.Constraint("DistanceX", -1, 1, 0, 2, 115.0),
    Sketcher.Constraint("DistanceY", 0, 2, -1, 1, 42.0),
    Sketcher.Constraint("DistanceY", 3, 2, -1, 1, 13.0),
])
pad5 = body.newObject("PartDesign::Pad", "Pad004")
pad5.Profile = sketch5
pad5.Length = 2
pad5.Reversed = True
doc.recompute()

chamfer = body.newObject("PartDesign::Chamfer", "Chamfer")
chamfer.Base = (pad5, edges_at(pad5, [
    (93.5, 22, -47),
    (98.75, 22, -47),
    (104, 22, -47),
    (109.25, 22, -47),
    (120, 22, -41.5),
    (120, 22, -35.75),
    (120, 22, -30),
    (120, 22, -18.5),
    (114.5, 22, -13),
    (109.25, 22, -13),
    (104, 22, -13),
    (98.75, 22, -13),
    (114.5, 22, -47),
    (120, 22, -24.25),
    (93.5, 22, -13),
]))
chamfer.ChamferType = "Two distances"
chamfer.Size = 5
chamfer.Size2 = 20

doc.recompute()
